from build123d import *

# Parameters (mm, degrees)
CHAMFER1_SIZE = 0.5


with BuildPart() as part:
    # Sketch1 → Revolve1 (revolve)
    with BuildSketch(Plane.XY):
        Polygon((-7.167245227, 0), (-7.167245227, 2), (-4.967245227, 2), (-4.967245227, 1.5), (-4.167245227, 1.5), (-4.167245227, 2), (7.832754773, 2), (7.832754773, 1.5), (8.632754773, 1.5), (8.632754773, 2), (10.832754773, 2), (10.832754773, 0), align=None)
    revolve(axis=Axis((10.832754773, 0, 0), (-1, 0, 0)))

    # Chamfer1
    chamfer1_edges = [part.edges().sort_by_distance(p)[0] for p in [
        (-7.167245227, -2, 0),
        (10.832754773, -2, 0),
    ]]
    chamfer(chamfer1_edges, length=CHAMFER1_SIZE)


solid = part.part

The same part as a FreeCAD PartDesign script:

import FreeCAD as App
import Part
import Sketcher
from FreeCAD import Vector


def edges_at(feature, points):
    """Names of the edges that pass closest to the given points."""
    edges = feature.Shape.Edges
    near = lambda p: min(range(len(edges)), key=lambda i: edges[i].distToShape(Part.Vertex(*p))[0])
    return sorted({f"Edge{near(p) + 1}" for p in points})


def add_polygon(sketch, points):
    """Adds a closed chain of lines whose ends are joined by coincident constraints."""
    first, n = sketch.GeometryCount, len(points)
    for a, b in zip(points, points[1:] + points[:1]):
        sketch.addGeometry(Part.LineSegment(App.Vector(*a, 0), App.Vector(*b, 0)), False)
    for i in range(n):
        sketch.addConstraint(Sketcher.Constraint("Coincident", first + i, 2, first + (i + 1) % n, 1))

doc = App.newDocument("Part")
body = doc.addObject("PartDesign::Body", "Body")

sketch1 = body.newObject("Sketcher::SketchObject", "Sketch")
sketch1.AttachmentSupport = (doc.getObject("XY_Plane"), [""])
sketch1.MapMode = "FlatFace"
add_polygon(sketch1, [(-7.2, 2), (-7.2, 0), (10.8, 0), (10.8, 2), (8.6, 2), (8.6, 1.5), (7.8, 1.5), (7.8, 2), (-4.2, 2), (-4.2, 1.5), (-5, 1.5), (-5, 2)])
sketch1.addConstraint(Sketcher.Constraint("Vertical", 0))
sketch1.addConstraint(Sketcher.Constraint("Horizontal", 1))
sketch1.addConstraint(Sketcher.Constraint("Vertical", 2))
sketch1.addConstraint(Sketcher.Constraint("Horizontal", 3))
sketch1.addConstraint(Sketcher.Constraint("Vertical", 4))
sketch1.addConstraint(Sketcher.Constraint("Horizontal", 5))
sketch1.addConstraint(Sketcher.Constraint("Vertical", 6))
sketch1.addConstraint(Sketcher.Constraint("Horizontal", 7))
sketch1.addConstraint(Sketcher.Constraint("Vertical", 8))
sketch1.addConstraint(Sketcher.Constraint("Horizontal", 9))
sketch1.addConstraint(Sketcher.Constraint("Vertical", 10))
sketch1.addConstraint(Sketcher.Constraint("Horizontal", 11))
sketch1.addConstraint(Sketcher.Constraint("PointOnObject", 0, 2, -1))
sketch1.addConstraint(Sketcher.Constraint("Horizontal", 3, 2, 6, 2))
sketch1.addConstraint(Sketcher.Constraint("Horizontal", 5, 2, 8, 2))
sketch1.addConstraint(Sketcher.Constraint("Horizontal", 7, 2, 10, 2))
sketch1.addConstraint(Sketcher.Constraint("Equal", 5, 9))
sketch1.addConstraint(Sketcher.Constraint("Equal", 3, 11))
sketch1.addConstraint(Sketcher.Constraint("DistanceX", 1, 1, 1, 2, 18.0))
sketch1.addConstraint(Sketcher.Constraint("DistanceX", 7, 2, 7, 1, 12.0))
sketch1.addConstraint(Sketcher.Constraint("DistanceY", 0, 2, 0, 1, 2.0))
sketch1.addConstraint(Sketcher.Constraint("DistanceX", 3, 2, 3, 1, 2.2))
sketch1.addConstraint(Sketcher.Constraint("DistanceY", 4, 2, 4, 1, 0.5))
sketch1.addConstraint(Sketcher.Constraint("DistanceX", 0, 2, -1, 1, 7.167245))
revolution = body.newObject("PartDesign::Revolution", "Revolution")
revolution.Profile = sketch1
revolution.ReferenceAxis = (sketch1, ["H_Axis"])
revolution.Angle = 360
doc.recompute()

chamfer = body.newObject("PartDesign::Chamfer", "Chamfer")
chamfer.Base = (revolution, edges_at(revolution, [(-7.167, -2, 0), (10.833, -2, 0)]))
chamfer.Size = 0.5

doc.recompute()
